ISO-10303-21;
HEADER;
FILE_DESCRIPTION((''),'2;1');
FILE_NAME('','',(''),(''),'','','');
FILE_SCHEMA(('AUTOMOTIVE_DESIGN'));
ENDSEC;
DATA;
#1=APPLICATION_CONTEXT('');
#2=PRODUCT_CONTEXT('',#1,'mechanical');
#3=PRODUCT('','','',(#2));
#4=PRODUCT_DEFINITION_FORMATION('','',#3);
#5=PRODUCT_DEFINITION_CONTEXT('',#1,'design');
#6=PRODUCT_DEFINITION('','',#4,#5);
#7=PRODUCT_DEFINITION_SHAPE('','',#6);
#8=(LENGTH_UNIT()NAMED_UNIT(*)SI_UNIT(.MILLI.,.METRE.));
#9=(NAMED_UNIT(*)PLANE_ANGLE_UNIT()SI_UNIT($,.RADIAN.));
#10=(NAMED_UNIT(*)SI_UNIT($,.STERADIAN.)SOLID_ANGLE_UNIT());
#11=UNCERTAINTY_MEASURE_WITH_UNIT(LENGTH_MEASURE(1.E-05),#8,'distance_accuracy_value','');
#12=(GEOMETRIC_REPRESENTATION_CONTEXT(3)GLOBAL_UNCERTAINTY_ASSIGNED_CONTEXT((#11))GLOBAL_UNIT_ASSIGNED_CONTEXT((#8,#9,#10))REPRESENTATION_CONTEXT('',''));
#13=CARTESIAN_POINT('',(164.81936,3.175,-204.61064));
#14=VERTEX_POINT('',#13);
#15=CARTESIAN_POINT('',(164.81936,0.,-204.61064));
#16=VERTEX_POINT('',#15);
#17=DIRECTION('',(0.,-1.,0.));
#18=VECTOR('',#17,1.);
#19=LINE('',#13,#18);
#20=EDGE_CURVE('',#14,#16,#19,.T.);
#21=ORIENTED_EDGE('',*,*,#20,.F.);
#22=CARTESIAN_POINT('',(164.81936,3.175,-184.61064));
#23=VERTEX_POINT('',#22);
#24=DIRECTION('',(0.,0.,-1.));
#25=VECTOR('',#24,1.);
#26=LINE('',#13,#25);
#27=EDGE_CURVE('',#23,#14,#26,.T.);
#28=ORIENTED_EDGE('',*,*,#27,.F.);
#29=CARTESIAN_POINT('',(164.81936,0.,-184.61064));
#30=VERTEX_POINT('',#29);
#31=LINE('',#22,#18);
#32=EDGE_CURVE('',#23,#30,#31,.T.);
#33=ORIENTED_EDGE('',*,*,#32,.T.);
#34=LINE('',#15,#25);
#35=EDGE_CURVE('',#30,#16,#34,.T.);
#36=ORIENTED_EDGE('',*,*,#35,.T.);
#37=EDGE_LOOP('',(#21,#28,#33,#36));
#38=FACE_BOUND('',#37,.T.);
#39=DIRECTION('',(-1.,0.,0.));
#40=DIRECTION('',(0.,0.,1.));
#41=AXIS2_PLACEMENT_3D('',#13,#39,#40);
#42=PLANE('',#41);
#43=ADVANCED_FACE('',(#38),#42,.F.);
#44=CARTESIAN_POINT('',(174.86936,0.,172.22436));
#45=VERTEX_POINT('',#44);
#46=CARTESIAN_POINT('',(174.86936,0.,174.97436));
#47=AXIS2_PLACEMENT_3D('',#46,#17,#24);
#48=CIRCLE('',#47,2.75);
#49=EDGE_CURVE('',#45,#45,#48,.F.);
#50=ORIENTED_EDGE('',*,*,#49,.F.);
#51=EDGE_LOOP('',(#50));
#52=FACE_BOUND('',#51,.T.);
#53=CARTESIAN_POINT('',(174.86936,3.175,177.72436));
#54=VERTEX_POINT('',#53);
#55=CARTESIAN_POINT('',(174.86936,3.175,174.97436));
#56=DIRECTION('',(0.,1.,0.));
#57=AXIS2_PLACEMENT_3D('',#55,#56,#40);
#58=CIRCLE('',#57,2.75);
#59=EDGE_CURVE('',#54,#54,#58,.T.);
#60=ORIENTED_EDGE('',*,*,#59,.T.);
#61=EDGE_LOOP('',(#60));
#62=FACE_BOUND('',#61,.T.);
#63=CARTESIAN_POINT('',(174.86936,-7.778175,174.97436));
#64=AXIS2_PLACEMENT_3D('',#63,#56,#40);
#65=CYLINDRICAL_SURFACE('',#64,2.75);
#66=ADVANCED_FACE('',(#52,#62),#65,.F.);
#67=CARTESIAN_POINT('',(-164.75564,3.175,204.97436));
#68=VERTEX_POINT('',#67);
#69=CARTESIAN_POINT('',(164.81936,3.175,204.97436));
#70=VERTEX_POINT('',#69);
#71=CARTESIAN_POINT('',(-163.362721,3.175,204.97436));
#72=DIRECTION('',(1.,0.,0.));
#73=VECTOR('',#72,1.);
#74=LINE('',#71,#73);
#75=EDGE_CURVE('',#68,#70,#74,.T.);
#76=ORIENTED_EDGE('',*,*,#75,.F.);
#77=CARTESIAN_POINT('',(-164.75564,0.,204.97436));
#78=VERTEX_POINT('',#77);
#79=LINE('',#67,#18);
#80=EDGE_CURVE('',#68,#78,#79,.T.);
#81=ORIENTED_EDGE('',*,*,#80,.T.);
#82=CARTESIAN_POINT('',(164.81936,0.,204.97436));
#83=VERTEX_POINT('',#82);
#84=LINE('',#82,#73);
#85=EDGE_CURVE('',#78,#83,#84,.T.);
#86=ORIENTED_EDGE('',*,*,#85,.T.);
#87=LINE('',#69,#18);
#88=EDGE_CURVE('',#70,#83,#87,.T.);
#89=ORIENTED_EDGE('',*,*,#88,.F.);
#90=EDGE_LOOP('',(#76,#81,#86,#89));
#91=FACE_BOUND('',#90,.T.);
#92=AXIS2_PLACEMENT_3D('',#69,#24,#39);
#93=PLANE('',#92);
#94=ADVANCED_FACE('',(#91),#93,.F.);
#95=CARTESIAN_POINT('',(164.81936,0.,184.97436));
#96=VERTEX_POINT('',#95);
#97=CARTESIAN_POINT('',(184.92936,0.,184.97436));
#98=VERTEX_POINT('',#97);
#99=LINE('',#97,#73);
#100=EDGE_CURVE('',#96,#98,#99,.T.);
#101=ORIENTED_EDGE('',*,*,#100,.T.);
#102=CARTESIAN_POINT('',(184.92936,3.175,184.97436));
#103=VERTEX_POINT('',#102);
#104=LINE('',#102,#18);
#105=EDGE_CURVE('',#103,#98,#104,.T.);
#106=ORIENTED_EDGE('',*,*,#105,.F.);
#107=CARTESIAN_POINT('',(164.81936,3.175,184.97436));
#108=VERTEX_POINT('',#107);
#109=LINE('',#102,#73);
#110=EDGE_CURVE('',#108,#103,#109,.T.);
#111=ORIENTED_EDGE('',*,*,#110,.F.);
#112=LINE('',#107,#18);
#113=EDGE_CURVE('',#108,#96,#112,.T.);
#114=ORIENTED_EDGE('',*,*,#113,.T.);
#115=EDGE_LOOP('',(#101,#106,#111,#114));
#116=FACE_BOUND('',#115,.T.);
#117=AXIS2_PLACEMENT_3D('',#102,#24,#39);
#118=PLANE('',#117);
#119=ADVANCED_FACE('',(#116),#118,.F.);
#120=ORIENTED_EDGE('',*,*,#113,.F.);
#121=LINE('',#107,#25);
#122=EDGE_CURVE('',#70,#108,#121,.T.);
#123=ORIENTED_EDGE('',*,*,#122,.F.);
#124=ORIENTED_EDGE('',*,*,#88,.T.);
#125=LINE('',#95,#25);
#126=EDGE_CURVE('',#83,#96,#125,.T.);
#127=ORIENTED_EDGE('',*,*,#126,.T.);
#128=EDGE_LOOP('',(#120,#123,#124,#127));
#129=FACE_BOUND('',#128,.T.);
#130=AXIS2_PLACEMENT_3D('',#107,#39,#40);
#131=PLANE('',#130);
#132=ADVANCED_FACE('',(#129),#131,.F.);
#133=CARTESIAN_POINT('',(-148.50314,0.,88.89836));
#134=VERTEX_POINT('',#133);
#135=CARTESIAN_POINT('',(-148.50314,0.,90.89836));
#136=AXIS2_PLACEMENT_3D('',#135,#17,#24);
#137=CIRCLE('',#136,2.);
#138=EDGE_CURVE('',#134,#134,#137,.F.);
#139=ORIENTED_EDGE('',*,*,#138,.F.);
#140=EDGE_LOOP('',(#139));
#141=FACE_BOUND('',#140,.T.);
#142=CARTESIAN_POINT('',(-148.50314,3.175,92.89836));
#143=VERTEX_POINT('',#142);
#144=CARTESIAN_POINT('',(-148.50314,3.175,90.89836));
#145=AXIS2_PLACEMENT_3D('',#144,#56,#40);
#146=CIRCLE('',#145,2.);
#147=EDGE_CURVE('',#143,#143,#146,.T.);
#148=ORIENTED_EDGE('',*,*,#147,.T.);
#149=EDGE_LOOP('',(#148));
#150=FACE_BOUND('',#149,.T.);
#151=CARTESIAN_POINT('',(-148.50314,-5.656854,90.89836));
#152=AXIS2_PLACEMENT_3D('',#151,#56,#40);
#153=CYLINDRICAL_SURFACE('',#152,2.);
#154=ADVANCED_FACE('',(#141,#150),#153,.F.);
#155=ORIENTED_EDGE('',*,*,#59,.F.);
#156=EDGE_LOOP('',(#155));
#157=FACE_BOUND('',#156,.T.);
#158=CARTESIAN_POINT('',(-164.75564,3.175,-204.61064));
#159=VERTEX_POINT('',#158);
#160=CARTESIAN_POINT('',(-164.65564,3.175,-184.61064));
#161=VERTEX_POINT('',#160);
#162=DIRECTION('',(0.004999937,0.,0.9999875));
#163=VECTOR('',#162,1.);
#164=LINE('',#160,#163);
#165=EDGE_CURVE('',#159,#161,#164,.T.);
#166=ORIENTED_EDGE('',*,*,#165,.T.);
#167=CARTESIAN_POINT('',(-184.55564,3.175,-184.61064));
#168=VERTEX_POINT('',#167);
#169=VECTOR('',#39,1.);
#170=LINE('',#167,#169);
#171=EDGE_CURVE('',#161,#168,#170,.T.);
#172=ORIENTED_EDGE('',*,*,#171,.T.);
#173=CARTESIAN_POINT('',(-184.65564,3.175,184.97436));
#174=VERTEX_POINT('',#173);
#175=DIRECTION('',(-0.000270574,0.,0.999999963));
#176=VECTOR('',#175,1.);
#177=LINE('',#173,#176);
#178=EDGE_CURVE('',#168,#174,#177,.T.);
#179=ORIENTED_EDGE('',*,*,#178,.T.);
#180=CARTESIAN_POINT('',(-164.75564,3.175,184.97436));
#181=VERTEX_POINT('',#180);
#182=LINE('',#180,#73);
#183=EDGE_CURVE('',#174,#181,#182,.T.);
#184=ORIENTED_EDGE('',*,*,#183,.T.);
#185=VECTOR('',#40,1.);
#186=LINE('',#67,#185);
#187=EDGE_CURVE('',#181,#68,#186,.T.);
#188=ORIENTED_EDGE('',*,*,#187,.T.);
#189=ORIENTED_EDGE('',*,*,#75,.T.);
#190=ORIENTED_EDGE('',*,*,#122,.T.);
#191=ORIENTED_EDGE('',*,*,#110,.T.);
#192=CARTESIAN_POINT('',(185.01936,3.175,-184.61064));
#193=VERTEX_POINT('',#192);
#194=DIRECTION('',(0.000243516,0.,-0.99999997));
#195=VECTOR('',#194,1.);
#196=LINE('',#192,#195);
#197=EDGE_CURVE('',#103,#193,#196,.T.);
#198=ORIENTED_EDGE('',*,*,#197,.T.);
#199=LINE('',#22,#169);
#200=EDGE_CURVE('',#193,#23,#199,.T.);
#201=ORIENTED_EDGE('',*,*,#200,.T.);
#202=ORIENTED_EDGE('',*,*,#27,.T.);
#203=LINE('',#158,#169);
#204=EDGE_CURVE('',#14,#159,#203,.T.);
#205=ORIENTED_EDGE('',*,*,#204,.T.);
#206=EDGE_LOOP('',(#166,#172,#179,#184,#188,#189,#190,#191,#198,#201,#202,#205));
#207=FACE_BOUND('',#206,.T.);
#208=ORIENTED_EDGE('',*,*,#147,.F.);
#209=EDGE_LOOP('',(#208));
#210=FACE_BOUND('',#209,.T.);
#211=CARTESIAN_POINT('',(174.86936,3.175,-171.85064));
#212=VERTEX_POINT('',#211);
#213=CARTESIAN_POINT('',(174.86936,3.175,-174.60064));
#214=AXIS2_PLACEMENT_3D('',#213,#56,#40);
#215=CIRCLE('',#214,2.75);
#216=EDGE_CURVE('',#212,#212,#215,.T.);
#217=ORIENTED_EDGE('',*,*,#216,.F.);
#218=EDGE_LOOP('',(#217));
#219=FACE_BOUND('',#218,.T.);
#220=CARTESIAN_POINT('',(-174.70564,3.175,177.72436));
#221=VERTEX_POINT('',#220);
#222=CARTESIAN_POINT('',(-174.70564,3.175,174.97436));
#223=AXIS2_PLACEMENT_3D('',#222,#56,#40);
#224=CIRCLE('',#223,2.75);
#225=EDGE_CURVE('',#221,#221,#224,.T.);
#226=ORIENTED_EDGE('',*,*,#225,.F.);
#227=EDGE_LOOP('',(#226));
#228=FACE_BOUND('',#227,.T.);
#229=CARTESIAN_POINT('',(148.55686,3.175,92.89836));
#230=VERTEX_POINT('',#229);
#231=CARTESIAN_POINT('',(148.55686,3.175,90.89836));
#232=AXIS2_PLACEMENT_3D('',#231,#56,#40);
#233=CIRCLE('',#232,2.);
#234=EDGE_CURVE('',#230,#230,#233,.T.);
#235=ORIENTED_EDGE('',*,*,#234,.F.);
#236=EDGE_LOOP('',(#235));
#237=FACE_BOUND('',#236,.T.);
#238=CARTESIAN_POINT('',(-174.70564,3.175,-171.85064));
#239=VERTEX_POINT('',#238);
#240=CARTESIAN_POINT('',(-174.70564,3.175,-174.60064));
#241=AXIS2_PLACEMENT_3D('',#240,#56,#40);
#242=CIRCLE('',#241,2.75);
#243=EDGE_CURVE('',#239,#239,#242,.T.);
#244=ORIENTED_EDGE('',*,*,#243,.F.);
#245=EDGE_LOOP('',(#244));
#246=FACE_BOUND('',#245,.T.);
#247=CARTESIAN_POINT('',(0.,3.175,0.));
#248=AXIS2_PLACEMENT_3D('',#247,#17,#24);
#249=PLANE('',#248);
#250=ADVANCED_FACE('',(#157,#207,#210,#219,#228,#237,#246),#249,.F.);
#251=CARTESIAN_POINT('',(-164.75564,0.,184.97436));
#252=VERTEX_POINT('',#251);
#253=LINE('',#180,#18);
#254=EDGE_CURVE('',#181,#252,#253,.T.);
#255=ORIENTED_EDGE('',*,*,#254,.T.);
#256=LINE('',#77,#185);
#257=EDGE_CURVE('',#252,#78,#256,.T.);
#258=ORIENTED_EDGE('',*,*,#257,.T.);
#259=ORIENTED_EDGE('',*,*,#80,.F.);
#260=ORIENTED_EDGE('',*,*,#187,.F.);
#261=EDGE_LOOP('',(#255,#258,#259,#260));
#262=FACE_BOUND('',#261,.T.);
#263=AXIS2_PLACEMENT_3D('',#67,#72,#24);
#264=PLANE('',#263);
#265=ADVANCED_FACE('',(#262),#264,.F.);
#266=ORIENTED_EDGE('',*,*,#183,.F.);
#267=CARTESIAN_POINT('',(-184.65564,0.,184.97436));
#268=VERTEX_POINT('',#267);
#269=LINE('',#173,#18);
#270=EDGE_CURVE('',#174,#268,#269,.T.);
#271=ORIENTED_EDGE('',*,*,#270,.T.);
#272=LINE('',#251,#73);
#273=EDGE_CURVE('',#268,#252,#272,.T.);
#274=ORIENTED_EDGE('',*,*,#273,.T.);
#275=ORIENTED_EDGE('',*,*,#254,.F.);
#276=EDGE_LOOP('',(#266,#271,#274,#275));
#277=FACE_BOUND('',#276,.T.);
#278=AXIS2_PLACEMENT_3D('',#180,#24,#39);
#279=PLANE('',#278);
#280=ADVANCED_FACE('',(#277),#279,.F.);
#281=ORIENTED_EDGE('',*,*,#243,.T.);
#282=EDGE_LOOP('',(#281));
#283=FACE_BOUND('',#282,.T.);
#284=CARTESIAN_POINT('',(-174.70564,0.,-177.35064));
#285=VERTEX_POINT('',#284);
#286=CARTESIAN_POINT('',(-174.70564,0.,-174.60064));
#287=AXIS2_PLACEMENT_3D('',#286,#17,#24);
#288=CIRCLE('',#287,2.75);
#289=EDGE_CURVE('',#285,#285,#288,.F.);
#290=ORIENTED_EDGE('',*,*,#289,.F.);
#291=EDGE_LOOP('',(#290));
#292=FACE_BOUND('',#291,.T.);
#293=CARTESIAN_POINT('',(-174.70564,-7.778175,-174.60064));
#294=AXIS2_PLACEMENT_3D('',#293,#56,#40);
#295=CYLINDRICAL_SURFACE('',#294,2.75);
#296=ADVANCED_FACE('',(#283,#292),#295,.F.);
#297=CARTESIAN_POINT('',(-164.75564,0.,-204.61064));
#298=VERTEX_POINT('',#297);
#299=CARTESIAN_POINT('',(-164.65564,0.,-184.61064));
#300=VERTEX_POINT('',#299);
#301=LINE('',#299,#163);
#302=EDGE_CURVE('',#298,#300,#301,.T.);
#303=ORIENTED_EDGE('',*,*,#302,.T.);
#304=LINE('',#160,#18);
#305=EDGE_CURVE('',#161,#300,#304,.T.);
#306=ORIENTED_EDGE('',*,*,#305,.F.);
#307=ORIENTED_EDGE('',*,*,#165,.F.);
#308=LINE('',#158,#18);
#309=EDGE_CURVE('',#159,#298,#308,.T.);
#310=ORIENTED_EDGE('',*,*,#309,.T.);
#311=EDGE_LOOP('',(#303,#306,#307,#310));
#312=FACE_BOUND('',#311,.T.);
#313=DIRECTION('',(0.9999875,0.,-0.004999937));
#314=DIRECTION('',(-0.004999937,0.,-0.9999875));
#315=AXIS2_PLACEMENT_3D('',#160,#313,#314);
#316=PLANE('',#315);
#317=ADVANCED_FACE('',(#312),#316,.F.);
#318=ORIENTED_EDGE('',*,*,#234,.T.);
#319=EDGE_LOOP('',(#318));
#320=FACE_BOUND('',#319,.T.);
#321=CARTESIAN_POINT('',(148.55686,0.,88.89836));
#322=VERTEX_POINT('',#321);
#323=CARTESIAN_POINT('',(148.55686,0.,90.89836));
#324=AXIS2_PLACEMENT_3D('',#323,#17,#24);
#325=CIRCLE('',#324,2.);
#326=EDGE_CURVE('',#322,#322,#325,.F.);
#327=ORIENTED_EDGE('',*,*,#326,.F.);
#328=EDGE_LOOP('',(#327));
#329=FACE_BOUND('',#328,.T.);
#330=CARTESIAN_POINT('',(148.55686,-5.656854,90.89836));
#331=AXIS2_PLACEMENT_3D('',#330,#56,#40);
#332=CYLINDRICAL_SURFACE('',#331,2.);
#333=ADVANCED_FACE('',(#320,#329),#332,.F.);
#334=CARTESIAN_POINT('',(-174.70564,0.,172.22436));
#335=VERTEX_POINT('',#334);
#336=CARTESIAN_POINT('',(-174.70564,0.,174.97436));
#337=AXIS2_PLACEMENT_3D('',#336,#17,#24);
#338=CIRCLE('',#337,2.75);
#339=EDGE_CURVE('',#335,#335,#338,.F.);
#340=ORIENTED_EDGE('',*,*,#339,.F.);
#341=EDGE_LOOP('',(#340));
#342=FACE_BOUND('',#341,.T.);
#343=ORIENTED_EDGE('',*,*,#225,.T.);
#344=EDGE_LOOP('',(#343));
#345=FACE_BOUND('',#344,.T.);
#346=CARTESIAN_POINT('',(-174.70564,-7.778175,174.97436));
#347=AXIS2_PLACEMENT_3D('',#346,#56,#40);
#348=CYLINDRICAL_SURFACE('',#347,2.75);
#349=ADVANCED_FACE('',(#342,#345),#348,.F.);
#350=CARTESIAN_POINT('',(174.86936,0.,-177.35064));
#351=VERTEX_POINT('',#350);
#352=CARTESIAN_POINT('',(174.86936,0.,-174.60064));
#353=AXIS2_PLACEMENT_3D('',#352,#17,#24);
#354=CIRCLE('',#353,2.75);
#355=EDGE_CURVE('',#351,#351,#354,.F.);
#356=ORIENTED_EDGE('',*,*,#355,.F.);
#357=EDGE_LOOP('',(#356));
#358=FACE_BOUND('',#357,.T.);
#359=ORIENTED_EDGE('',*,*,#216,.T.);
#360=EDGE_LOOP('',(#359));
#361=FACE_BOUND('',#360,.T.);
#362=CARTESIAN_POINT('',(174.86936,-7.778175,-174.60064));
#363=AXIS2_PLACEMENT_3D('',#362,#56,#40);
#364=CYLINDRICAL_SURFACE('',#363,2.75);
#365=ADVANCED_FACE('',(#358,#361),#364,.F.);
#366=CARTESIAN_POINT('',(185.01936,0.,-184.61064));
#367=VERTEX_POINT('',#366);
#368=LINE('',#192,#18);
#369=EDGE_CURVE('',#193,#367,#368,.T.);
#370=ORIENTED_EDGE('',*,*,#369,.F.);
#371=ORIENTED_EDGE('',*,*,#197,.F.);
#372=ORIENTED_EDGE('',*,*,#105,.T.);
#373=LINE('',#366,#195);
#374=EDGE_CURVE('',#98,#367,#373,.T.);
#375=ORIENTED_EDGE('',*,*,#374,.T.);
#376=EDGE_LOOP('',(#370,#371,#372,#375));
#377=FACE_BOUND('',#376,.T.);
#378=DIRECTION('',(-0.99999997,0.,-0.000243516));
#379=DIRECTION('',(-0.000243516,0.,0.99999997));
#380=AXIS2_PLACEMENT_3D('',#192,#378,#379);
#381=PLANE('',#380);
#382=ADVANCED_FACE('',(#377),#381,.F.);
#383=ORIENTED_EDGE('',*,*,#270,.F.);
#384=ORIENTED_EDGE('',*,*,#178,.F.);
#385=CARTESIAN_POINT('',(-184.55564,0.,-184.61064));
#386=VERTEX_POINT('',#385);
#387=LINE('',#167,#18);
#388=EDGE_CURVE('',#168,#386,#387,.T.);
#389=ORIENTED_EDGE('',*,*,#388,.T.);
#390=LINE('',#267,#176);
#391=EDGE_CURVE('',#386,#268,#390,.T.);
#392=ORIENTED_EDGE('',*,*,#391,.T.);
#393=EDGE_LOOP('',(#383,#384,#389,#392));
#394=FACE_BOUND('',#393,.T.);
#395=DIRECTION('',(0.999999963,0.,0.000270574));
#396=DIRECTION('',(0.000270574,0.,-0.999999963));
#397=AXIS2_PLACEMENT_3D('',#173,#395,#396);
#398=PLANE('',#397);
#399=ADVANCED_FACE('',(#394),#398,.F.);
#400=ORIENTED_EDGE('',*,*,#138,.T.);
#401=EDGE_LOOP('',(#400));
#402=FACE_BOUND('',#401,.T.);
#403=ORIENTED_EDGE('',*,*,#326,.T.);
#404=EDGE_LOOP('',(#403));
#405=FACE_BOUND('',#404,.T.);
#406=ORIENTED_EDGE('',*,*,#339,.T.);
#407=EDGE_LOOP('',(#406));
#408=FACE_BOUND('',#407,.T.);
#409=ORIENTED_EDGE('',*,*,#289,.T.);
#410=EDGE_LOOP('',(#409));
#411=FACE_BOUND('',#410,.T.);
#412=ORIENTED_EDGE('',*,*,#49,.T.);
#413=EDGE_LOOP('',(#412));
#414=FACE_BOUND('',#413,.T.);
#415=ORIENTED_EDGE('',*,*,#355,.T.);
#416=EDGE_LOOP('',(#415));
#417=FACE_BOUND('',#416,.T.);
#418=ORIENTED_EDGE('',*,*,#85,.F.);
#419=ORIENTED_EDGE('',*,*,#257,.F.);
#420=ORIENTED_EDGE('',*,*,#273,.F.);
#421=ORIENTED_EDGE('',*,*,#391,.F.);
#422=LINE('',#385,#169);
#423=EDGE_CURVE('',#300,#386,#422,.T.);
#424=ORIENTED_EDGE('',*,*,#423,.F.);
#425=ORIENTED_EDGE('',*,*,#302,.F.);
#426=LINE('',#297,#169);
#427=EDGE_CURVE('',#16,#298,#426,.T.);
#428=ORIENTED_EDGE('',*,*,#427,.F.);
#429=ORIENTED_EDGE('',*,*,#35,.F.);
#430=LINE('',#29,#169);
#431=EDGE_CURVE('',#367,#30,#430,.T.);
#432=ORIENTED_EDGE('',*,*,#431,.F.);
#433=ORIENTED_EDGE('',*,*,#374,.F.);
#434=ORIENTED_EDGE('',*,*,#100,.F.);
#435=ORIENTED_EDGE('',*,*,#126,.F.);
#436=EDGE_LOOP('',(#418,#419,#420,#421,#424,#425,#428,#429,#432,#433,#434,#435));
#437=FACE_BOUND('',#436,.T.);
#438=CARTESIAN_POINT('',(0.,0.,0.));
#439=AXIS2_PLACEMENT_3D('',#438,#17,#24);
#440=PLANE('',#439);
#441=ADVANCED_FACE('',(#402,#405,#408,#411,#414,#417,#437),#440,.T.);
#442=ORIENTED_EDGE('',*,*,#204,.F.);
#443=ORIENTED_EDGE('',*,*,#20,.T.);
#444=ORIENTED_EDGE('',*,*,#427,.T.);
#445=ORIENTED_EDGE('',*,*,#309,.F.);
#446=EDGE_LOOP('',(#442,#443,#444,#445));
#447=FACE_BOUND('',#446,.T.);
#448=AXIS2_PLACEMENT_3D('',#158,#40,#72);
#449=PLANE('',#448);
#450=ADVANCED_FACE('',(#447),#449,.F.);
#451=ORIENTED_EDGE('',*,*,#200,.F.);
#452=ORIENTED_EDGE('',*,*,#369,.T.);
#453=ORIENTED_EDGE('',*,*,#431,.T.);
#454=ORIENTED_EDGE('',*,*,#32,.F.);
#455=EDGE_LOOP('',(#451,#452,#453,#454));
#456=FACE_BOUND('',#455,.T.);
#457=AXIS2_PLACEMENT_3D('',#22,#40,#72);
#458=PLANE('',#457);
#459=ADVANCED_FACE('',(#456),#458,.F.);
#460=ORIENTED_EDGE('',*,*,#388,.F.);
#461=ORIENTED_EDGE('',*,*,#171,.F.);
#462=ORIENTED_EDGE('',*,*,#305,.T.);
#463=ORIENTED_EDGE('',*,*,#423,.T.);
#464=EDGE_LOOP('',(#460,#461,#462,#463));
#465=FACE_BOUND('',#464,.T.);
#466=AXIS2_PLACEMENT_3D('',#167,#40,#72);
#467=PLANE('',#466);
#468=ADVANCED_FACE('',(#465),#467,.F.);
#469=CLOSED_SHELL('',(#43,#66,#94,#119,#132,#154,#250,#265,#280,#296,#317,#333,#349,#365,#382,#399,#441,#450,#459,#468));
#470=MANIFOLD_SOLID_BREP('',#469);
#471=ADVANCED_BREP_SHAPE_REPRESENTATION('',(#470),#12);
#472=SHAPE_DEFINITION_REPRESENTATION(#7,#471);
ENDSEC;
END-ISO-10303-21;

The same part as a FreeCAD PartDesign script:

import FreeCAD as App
import Part
import Sketcher


def add_polygon(sketch, points):
    """Adds a closed chain of lines whose ends are joined by coincident constraints."""
    first, n = sketch.GeometryCount, len(points)
    for a, b in zip(points, points[1:] + points[:1]):
        sketch.addGeometry(Part.LineSegment(App.Vector(*a, 0), App.Vector(*b, 0)), False)
    for i in range(n):
        sketch.addConstraint(Sketcher.Constraint("Coincident", first + i, 2, first + (i + 1) % n, 1))

doc = App.newDocument("Part")
body = doc.addObject("PartDesign::Body", "Body")

# Sketch on XZ plane
sketch1 = body.newObject("Sketcher::SketchObject", "Sketch")
sketch1.AttachmentSupport = (doc.getObject("XZ_Plane"), [""])
sketch1.MapMode = "FlatFace"
add_polygon(sketch1, [(-165, 185), (-165, 205), (165, 205), (165, 185), (185, 185), (185, -185), (165, -185), (165, -205), (-165, -205), (-165, -185), (-185, -185), (-185, 185)])  # lines 0-11
sketch1.addConstraint([
    Sketcher.Constraint("Vertical", 0),
    Sketcher.Constraint("Horizontal", 1),
    Sketcher.Constraint("Vertical", 2),
    Sketcher.Constraint("Horizontal", 3),
    Sketcher.Constraint("Horizontal", 5),
    Sketcher.Constraint("Vertical", 6),
    Sketcher.Constraint("Horizontal", 7),
    Sketcher.Constraint("Horizontal", 9),
    Sketcher.Constraint("Horizontal", 11),
    Sketcher.Constraint("Horizontal", 5, 2, 8, 2),
    Sketcher.Constraint("Horizontal", 3, 2, 10, 2),
    Sketcher.Constraint("Vertical", 2, 2, 5, 2),
    Sketcher.Constraint("Vertical", 0, 2, 7, 2),
    Sketcher.Constraint("Equal", 9, 11),
    Sketcher.Constraint("Equal", 2, 6),
    Sketcher.Constraint("DistanceY", 0, 1, 0, 2, 20.0),
    Sketcher.Constraint("DistanceX", 5, 2, 5, 1, 20.2),
    Sketcher.Constraint("DistanceX", 9, 2, 9, 1, 19.9),
    Sketcher.Constraint("DistanceX", 3, 1, 3, 2, 20.11),
    Sketcher.Constraint("DistanceX", 7, 2, 8, 2, 0.1),
    Sketcher.Constraint("DistanceX", 1, 1, 1, 2, 329.575),
    Sketcher.Constraint("DistanceY", 4, 2, 3, 2, 369.585),
    Sketcher.Constraint("DistanceX", 0, 2, -1, 1, 164.75564),
    Sketcher.Constraint("DistanceY", -1, 1, 0, 2, 204.97436),
])
pad1 = body.newObject("PartDesign::Pad", "Pad")
pad1.Profile = sketch1
pad1.Length = 3.175
pad1.Reversed = True

# Sketch on XZ plane
sketch2 = body.newObject("Sketcher::SketchObject", "Sketch001")
sketch2.AttachmentSupport = (doc.getObject("XZ_Plane"), [""])
sketch2.MapMode = "FlatFace"
sketch2.AttachmentOffset = App.Placement(App.Vector(0, 0, -3.175), App.Rotation())
sketch2.addGeometry([
    Part.Circle(App.Vector(-174.7, 175, 0), App.Vector(0, 0, 1), 2.8),
    Part.Circle(App.Vector(174.9, 175, 0), App.Vector(0, 0, 1), 2.8),
    Part.Circle(App.Vector(174.9, -174.6, 0), App.Vector(0, 0, 1), 2.8),
    Part.Circle(App.Vector(-174.7, -174.6, 0), App.Vector(0, 0, 1), 2.8),
], False)
sketch2.addConstraint([
    Sketcher.Constraint("Equal", 0, 1),
    Sketcher.Constraint("Equal", 1, 2),
    Sketcher.Constraint("Equal", 2, 3),
    Sketcher.Constraint("Horizontal", 0, 3, 1, 3),
    Sketcher.Constraint("Horizontal", 2, 3, 3, 3),
    Sketcher.Constraint("Vertical", 1, 3, 2, 3),
    Sketcher.Constraint("Vertical", 0, 3, 3, 3),
    Sketcher.Constraint("Diameter", 0, 5.5),
    Sketcher.Constraint("DistanceX", 0, 3, 1, 3, 349.575),
    Sketcher.Constraint("DistanceY", 2, 3, 1, 3, 349.575),
    Sketcher.Constraint("DistanceX", 0, 3, -1, 1, 174.70564),
    Sketcher.Constraint("DistanceY", -1, 1, 0, 3, 174.97436),
])
pocket1 = body.newObject("PartDesign::Pocket", "Pocket")
pocket1.Profile = sketch2
pocket1.Length = 3.175
pocket1.Reversed = True

# Sketch on XZ plane
sketch3 = body.newObject("Sketcher::SketchObject", "Sketch002")
sketch3.AttachmentSupport = (doc.getObject("XZ_Plane"), [""])
sketch3.MapMode = "FlatFace"
sketch3.AttachmentOffset = App.Placement(App.Vector(0, 0, -3.175), App.Rotation())
sketch3.addGeometry([
    Part.Circle(App.Vector(-148.5, 90.9, 0), App.Vector(0, 0, 1), 2),
    Part.Circle(App.Vector(148.6, 90.9, 0), App.Vector(0, 0, 1), 2),
], False)
sketch3.addConstraint([
    Sketcher.Constraint("Equal", 0, 1),
    Sketcher.Constraint("Horizontal", 0, 3, 1, 3),
    Sketcher.Constraint("Diameter", 0, 4.0),
    Sketcher.Constraint("DistanceX", 0, 3, 1, 3, 297.06),
    Sketcher.Constraint("DistanceX", 0, 3, -1, 1, 148.50314),
    Sketcher.Constraint("DistanceY", -1, 1, 0, 3, 90.89836),
])
pocket2 = body.newObject("PartDesign::Pocket", "Pocket001")
pocket2.Profile = sketch3
pocket2.Length = 3.175
pocket2.Reversed = True

doc.recompute()
